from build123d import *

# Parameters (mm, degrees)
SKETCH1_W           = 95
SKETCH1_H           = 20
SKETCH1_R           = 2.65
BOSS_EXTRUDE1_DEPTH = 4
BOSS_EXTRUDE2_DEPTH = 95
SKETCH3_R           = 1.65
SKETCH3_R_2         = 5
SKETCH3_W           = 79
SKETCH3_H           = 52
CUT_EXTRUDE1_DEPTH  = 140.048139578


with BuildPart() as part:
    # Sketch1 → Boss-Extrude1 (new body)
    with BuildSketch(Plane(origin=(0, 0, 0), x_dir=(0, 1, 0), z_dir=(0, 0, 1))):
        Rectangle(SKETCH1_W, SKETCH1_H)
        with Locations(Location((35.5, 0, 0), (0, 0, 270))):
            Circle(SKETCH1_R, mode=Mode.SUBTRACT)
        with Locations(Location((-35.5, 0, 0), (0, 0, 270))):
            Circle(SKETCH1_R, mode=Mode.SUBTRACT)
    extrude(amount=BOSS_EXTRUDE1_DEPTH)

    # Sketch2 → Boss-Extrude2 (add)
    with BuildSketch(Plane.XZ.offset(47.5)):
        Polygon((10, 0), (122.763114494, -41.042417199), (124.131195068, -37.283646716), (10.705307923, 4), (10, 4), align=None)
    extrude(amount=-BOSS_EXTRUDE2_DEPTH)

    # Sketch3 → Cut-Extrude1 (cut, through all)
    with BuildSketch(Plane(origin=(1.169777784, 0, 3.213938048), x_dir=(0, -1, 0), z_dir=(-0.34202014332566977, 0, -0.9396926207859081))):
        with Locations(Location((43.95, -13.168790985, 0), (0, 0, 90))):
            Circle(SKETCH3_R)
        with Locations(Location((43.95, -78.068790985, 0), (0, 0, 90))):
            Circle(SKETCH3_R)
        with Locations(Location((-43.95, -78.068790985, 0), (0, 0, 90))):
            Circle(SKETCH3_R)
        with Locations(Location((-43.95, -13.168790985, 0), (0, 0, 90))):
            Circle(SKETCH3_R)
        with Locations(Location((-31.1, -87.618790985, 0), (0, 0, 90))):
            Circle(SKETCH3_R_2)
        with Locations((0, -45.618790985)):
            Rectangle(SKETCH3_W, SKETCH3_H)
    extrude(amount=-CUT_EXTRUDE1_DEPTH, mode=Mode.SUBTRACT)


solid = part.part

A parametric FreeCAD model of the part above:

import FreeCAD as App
import Part
import Sketcher
from FreeCAD import Vector
Q = App.Units.Quantity


def add_polygon(sketch, points):
    """Adds a closed chain of lines whose ends are joined by coincident constraints."""
    first, n = sketch.GeometryCount, len(points)
    for a, b in zip(points, points[1:] + points[:1]):
        sketch.addGeometry(Part.LineSegment(App.Vector(*a, 0), App.Vector(*b, 0)), False)
    for i in range(n):
        sketch.addConstraint(Sketcher.Constraint("Coincident", first + i, 2, first + (i + 1) % n, 1))

doc = App.newDocument("Part")
params = doc.addObject("Spreadsheet::Sheet", "Params")
for row, (alias, value) in enumerate([
    ("sketch1_diameter", "5.3 mm"),
    ("sketch1_width", "20 mm"),
    ("sketch1_height", "95 mm"),
    ("pad1_length", "4 mm"),
    ("sketch2_height", "4 mm"),
    ("sketch2_length", "120 mm"),
    ("sketch2_length2", "4 mm"),
    ("pad2_length", "95 mm"),
    ("sketch3_diameter", "10 mm"),
    ("sketch3_diameter2", "3.3 mm"),
    ("sketch3_width", "79 mm"),
    ("sketch3_height", "52 mm"),
], start=1):
    params.set(f"A{row}", alias)
    params.set(f"B{row}", "=" + value)
    params.setAlias(f"B{row}", alias)

body = doc.addObject("PartDesign::Body", "Body")

sketch1 = body.newObject("Sketcher::SketchObject", "Sketch")
sketch1.AttachmentSupport = (doc.getObject("XY_Plane"), [""])
sketch1.MapMode = "FlatFace"
add_polygon(sketch1, [(-10, -47.5), (10, -47.5), (10, 47.5), (-10, 47.5)])
sketch1.addGeometry(Part.Circle(Vector(0, -35.5, 0), Vector(0, 0, 1), 2.6), False)
sketch1.addGeometry(Part.Circle(Vector(0, 35.5, 0), Vector(0, 0, 1), 2.6), False)
sketch1.addConstraint([
    Sketcher.Constraint("Horizontal", 0),
    Sketcher.Constraint("Vertical", 1),
    Sketcher.Constraint("Horizontal", 2),
    Sketcher.Constraint("Vertical", 3),
    Sketcher.Constraint("Equal", 4, 5),
    Sketcher.Constraint("Symmetric", 4, 3, 5, 3, -1, 1),
    Sketcher.Constraint("Symmetric", 0, 2, 2, 2, -1, 1),
    Sketcher.Constraint("PointOnObject", 4, 3, -2),
    Sketcher.Constraint("Diameter", 4, Q("5.3 mm")),
    Sketcher.Constraint("DistanceX", 0, 1, 0, 2, Q("20 mm")),
    Sketcher.Constraint("DistanceY", 1, 1, 1, 2, Q("95 mm")),
    Sketcher.Constraint("DistanceY", 4, 3, 5, 3, Q("71 mm")),
])
sketch1.setExpression("Constraints[12]", "Params.sketch1_diameter")
sketch1.setExpression("Constraints[13]", "Params.sketch1_width")
sketch1.setExpression("Constraints[14]", "Params.sketch1_height")
pad1 = body.newObject("PartDesign::Pad", "Pad")
pad1.Profile = sketch1
pad1.setExpression("Length", "Params.pad1_length")

sketch2 = body.newObject("Sketcher::SketchObject", "Sketch001")
sketch2.AttachmentSupport = (doc.getObject("XZ_Plane"), [""])
sketch2.MapMode = "FlatFace"
sketch2.AttachmentOffset = App.Placement(Vector(0, 0, 47.5), App.Rotation())
add_polygon(sketch2, [(10, 0), (122.8, -41), (124.1, -37.3), (10.7, 4), (10, 4)])
sketch2.addConstraint([
    Sketcher.Constraint("Horizontal", 3),
    Sketcher.Constraint("Vertical", 4),
    Sketcher.Constraint("PointOnObject", 4, 2, -1),
    Sketcher.Constraint("Perpendicular", 0, 1),
    Sketcher.Constraint("Perpendicular", 1, 2),
    Sketcher.Constraint("DistanceY", 4, 2, 4, 1, Q("4 mm")),
    Sketcher.Constraint("Angle", 0, Q("-20 deg")),
    Sketcher.Constraint("Distance", 0, Q("120 mm")),
    Sketcher.Constraint("Distance", 1, Q("4 mm")),
    Sketcher.Constraint("DistanceX", -1, 1, 3, 2, Q("10 mm")),
])
sketch2.setExpression("Constraints[10]", "Params.sketch2_height")
sketch2.setExpression("Constraints[12]", "Params.sketch2_length")
sketch2.setExpression("Constraints[13]", "Params.sketch2_length2")
pad2 = body.newObject("PartDesign::Pad", "Pad001")
pad2.Profile = sketch2
pad2.setExpression("Length", "Params.pad2_length")
pad2.Reversed = True

sketch3 = body.newObject("Sketcher::SketchObject", "Sketch002")
sketch3.Placement = App.Placement(Vector(1.169778, 0, 3.213938), App.Rotation(Vector(0, -1, 0), Vector(-0.939692621, 0, 0.342020143), Vector(-0.342020143, 0, -0.939692621), "ZXY"))
sketch3.addGeometry(Part.Circle(Vector(44, -13.2, 0), Vector(0, 0, 1), 1.6), False)
sketch3.addGeometry(Part.Circle(Vector(44, -78.1, 0), Vector(0, 0, 1), 1.6), False)
sketch3.addGeometry(Part.Circle(Vector(-44, -78.1, 0), Vector(0, 0, 1), 1.6), False)
sketch3.addGeometry(Part.Circle(Vector(-44, -13.2, 0), Vector(0, 0, 1), 1.6), False)
sketch3.addGeometry(Part.Circle(Vector(-31.1, -87.6, 0), Vector(0, 0, 1), 5), False)
add_polygon(sketch3, [(-39.5, -19.6), (-39.5, -71.6), (39.5, -71.6), (39.5, -19.6)])
sketch3.addConstraint([
    Sketcher.Constraint("Vertical", 5),
    Sketcher.Constraint("Horizontal", 6),
    Sketcher.Constraint("Vertical", 7),
    Sketcher.Constraint("Horizontal", 8),
    Sketcher.Constraint("Equal", 0, 1),
    Sketcher.Constraint("Equal", 1, 2),
    Sketcher.Constraint("Equal", 2, 3),
    Sketcher.Constraint("Symmetric", 1, 3, 2, 3, -2),
    Sketcher.Constraint("Symmetric", 0, 3, 3, 3, -2),
    Sketcher.Constraint("Vertical", 0, 3, 1, 3),
    Sketcher.Constraint("Diameter", 4, Q("10 mm")),
    Sketcher.Constraint("Diameter", 0, Q("3.3 mm")),
    Sketcher.Constraint("DistanceX", 6, 1, 6, 2, Q("79 mm")),
    Sketcher.Constraint("DistanceY", 5, 2, 5, 1, Q("52 mm")),
    Sketcher.Constraint("DistanceY", 4, 3, 5, 2, Q("16 mm")),
    Sketcher.Constraint("DistanceX", 4, 3, -1, 1, Q("31.1 mm")),
    Sketcher.Constraint("DistanceX", 5, 2, -1, 1, Q("39.5 mm")),
    Sketcher.Constraint("DistanceY", 1, 3, 0, 3, Q("64.9 mm")),
    Sketcher.Constraint("DistanceX", 2, 3, 1, 3, Q("87.9 mm")),
    Sketcher.Constraint("DistanceY", 4, 3, 2, 3, Q("9.55 mm")),
    Sketcher.Constraint("DistanceY", 0, 3, -1, 1, Q("13.168791 mm")),
])
sketch3.setExpression("Constraints[14]", "Params.sketch3_diameter")
sketch3.setExpression("Constraints[15]", "Params.sketch3_diameter2")
sketch3.setExpression("Constraints[16]", "Params.sketch3_width")
sketch3.setExpression("Constraints[17]", "Params.sketch3_height")
pocket1 = body.newObject("PartDesign::Pocket", "Pocket")
pocket1.Profile = sketch3
pocket1.Type = "ThroughAll"

doc.recompute()
